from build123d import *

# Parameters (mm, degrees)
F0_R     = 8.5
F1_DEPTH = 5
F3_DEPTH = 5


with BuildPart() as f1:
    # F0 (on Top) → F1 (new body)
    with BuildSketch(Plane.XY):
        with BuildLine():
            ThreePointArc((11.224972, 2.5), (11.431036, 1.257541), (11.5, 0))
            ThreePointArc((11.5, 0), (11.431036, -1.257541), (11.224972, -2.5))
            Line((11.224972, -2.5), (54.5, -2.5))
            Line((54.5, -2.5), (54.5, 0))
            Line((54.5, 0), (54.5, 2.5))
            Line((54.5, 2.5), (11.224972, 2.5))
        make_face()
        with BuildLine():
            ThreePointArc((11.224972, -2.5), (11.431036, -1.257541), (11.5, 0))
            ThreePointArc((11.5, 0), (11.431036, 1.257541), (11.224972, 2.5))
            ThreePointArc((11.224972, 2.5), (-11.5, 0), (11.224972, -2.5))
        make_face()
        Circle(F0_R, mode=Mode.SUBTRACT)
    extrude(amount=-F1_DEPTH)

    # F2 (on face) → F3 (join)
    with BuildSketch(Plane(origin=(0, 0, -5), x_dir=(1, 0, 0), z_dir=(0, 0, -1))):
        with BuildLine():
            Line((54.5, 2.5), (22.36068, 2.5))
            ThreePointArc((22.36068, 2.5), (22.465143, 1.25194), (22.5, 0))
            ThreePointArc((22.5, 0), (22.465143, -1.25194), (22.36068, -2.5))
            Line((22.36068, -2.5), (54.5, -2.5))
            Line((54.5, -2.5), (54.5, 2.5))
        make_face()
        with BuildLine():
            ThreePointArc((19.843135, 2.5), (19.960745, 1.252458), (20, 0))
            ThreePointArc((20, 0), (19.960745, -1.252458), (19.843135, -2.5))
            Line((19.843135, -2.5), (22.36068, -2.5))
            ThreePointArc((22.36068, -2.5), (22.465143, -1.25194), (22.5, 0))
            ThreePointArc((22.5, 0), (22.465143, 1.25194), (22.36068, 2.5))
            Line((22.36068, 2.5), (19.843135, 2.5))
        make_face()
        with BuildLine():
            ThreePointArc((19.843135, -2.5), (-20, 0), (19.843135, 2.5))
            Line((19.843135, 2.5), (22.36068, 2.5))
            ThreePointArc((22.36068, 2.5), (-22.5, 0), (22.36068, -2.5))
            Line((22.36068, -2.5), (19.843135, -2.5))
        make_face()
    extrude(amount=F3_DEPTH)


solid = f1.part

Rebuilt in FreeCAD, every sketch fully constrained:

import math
import FreeCAD as App
import Part
import Sketcher
Q = App.Units.Quantity

doc = App.newDocument("Part")
body = doc.addObject("PartDesign::Body", "Body")

sketch1 = doc.addObject("Sketcher::SketchObject", "Sketch")
body.addObject(sketch1)
sketch1.AttachmentSupport = (doc.XY_Plane, [""])
sketch1.MapMode = "FlatFace"
sketch1.addGeometry([
    Part.LineSegment(App.Vector(11, -2, 0), App.Vector(54, -2, 0)),
    Part.LineSegment(App.Vector(54, -2, 0), App.Vector(54, 2, 0)),
    Part.LineSegment(App.Vector(54, 2, 0), App.Vector(11, 2, 0)),
    Part.ArcOfCircle(Part.Circle(App.Vector(0, 0, 0), App.Vector(0, 0, 1), 11), math.radians(13), math.radians(347)),
    Part.Circle(App.Vector(0, 0, 0), App.Vector(0, 0, 1), 8),
], False)
sketch1.addConstraint([
    Sketcher.Constraint("Coincident", 0, 2, 1, 1),
    Sketcher.Constraint("Coincident", 1, 2, 2, 1),
    Sketcher.Constraint("Coincident", 2, 2, 3, 1),
    Sketcher.Constraint("Coincident", 3, 2, 0, 1),
    Sketcher.Constraint("Horizontal", 0),
    Sketcher.Constraint("Vertical", 1),
    Sketcher.Constraint("Horizontal", 2),
    Sketcher.Constraint("Coincident", 3, 3, -1, 1),
    Sketcher.Constraint("Coincident", 4, 3, -1, 1),
    Sketcher.Constraint("Vertical", 2, 2, 3, 2),
    Sketcher.Constraint("Diameter", 4, Q("17 mm")),
    Sketcher.Constraint("Radius", 3, Q("11.5 mm")),
    Sketcher.Constraint("DistanceY", 1, 1, 1, 2, Q("5 mm")),
    Sketcher.Constraint("DistanceX", -1, 1, 0, 2, Q("54.5 mm")),
])
pad1 = doc.addObject("PartDesign::Pad", "Pad")
body.addObject(pad1)
pad1.Profile = sketch1
pad1.Length = 5
pad1.Reversed = True

sketch2 = doc.addObject("Sketcher::SketchObject", "Sketch001")
body.addObject(sketch2)
sketch2.AttachmentSupport = (doc.XY_Plane, [""])
sketch2.MapMode = "FlatFace"
sketch2.AttachmentOffset = App.Placement(App.Vector(0, 0, -5), App.Rotation())
sketch2.addGeometry([
    Part.LineSegment(App.Vector(54.5, -2.5, 0), App.Vector(22.36068, -2.5, 0)),
    Part.ArcOfCircle(Part.Circle(App.Vector(0, 0, 0), App.Vector(0, 0, 1), 22.5), math.radians(6.37937), math.radians(353.62063)),
    Part.LineSegment(App.Vector(22.36068, 2.5, 0), App.Vector(54.5, 2.5, 0)),
    Part.LineSegment(App.Vector(54.5, 2.5, 0), App.Vector(54.5, -2.5, 0)),
    Part.ArcOfCircle(Part.Circle(App.Vector(-0.000144, 0.000008, 0), App.Vector(0, 0, 1), 20.000144), math.radians(-7.180726), math.radians(-0.000022)),
    Part.ArcOfCircle(Part.Circle(App.Vector(-0.000144, -0.000008, 0), App.Vector(0, 0, 1), 20.000144), math.radians(0.000022), math.radians(7.180726)),
    Part.ArcOfCircle(Part.Circle(App.Vector(0, 0, 0), App.Vector(0, 0, 1), 20), math.radians(7.180756), math.radians(352.819244)),
], False)
sketch2.addConstraint([
    Sketcher.Constraint("Coincident", 0, 2, 1, 2),
    Sketcher.Constraint("Coincident", 1, 1, 2, 1),
    Sketcher.Constraint("Coincident", 2, 2, 3, 1),
    Sketcher.Constraint("Coincident", 3, 2, 0, 1),
    Sketcher.Constraint("Coincident", 4, 2, 5, 1),
    Sketcher.Constraint("Coincident", 5, 2, 6, 1),
    Sketcher.Constraint("Coincident", 6, 2, 4, 1),
    Sketcher.Constraint("Horizontal", 0),
    Sketcher.Constraint("Horizontal", 2),
    Sketcher.Constraint("Vertical", 3),
    Sketcher.Constraint("Coincident", 1, 3, -1, 1),
    Sketcher.Constraint("Coincident", 6, 3, -1, 1),
    Sketcher.Constraint("PointOnObject", 4, 2, -1),
    Sketcher.Constraint("Radius", 6, Q("20 mm")),
    Sketcher.Constraint("Radius", 1, Q("22.5 mm")),
    Sketcher.Constraint("DistanceY", 3, 2, 3, 1, Q("5 mm")),
    Sketcher.Constraint("DistanceX", -1, 1, 4, 2, Q("20 mm")),
    Sketcher.Constraint("DistanceY", 0, 2, 5, 2, Q("5 mm")),
    Sketcher.Constraint("DistanceY", 6, 2, 5, 2, Q("5 mm")),
    Sketcher.Constraint("DistanceY", 0, 2, -1, 1, Q("2.5 mm")),
    Sketcher.Constraint("DistanceX", -1, 1, 2, 2, Q("54.5 mm")),
    Sketcher.Constraint("Radius", 4, Q("20.000144 mm")),
    Sketcher.Constraint("Radius", 5, Q("20.000144 mm")),
])
pad2 = doc.addObject("PartDesign::Pad", "Pad001")
body.addObject(pad2)
pad2.Profile = sketch2
pad2.Length = 5
pad2.Reversed = True

doc.recompute()
